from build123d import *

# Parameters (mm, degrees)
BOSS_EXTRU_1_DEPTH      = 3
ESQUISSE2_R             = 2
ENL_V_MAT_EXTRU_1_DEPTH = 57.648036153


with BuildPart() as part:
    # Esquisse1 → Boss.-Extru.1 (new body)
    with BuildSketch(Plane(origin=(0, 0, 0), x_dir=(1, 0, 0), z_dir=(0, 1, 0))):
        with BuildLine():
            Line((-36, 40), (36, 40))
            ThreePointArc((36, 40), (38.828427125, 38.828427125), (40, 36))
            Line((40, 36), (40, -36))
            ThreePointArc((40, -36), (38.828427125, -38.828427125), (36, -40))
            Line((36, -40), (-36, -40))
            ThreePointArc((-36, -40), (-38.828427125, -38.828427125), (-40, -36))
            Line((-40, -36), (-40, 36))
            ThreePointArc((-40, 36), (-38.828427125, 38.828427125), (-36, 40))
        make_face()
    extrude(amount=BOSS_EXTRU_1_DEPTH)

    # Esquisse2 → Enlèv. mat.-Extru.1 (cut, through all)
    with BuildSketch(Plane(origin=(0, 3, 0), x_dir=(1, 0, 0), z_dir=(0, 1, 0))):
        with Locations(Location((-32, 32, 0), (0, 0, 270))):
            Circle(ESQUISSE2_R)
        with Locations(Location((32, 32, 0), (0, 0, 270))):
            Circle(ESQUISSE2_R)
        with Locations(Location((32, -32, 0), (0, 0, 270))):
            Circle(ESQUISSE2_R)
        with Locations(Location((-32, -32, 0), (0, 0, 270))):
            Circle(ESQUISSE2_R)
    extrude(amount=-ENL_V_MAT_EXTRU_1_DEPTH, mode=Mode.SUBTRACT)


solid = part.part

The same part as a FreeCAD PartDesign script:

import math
import FreeCAD as App
import Part
import Sketcher
from FreeCAD import Vector

doc = App.newDocument("Part")
params = doc.addObject("Spreadsheet::Sheet", "Params")
for row, (alias, value) in enumerate([
    ("sketch1_radius", "4 mm"),
    ("sketch1_width", "72 mm"),
    ("pad1_length", "3 mm"),
    ("sketch2_diameter", "4 mm"),
], start=1):
    params.set(f"A{row}", alias)
    params.set(f"B{row}", "=" + value)
    params.setAlias(f"B{row}", alias)

body = doc.addObject("PartDesign::Body", "Body")

# Sketch on XZ plane
sketch1 = body.newObject("Sketcher::SketchObject", "Sketch")
sketch1.AttachmentSupport = (doc.getObject("XZ_Plane"), [""])
sketch1.MapMode = "FlatFace"
sketch1.addGeometry(Part.LineSegment(Vector(36, -40, 0), Vector(-36, -40, 0)), False)
sketch1.addGeometry(Part.ArcOfCircle(Part.Circle(Vector(-36, -36, 0), Vector(0, 0, 1), 4), math.radians(180), math.radians(270)), False)
sketch1.addGeometry(Part.LineSegment(Vector(-40, -36, 0), Vector(-40, 36, 0)), False)
sketch1.addGeometry(Part.ArcOfCircle(Part.Circle(Vector(-36, 36, 0), Vector(0, 0, 1), 4), math.radians(90), math.radians(180)), False)
sketch1.addGeometry(Part.LineSegment(Vector(-36, 40, 0), Vector(36, 40, 0)), False)
sketch1.addGeometry(Part.ArcOfCircle(Part.Circle(Vector(36, 36, 0), Vector(0, 0, 1), 4), math.radians(0), math.radians(90)), False)
sketch1.addGeometry(Part.LineSegment(Vector(40, 36, 0), Vector(40, -36, 0)), False)
sketch1.addGeometry(Part.ArcOfCircle(Part.Circle(Vector(36, -36, 0), Vector(0, 0, 1), 4), math.radians(-90), math.radians(0)), False)
sketch1.addConstraint(Sketcher.Constraint("Tangent", 0, 2, 1, 2))
sketch1.addConstraint(Sketcher.Constraint("Tangent", 1, 1, 2, 1))
sketch1.addConstraint(Sketcher.Constraint("Tangent", 2, 2, 3, 2))
sketch1.addConstraint(Sketcher.Constraint("Tangent", 3, 1, 4, 1))
sketch1.addConstraint(Sketcher.Constraint("Tangent", 4, 2, 5, 2))
sketch1.addConstraint(Sketcher.Constraint("Tangent", 5, 1, 6, 1))
sketch1.addConstraint(Sketcher.Constraint("Tangent", 6, 2, 7, 2))
sketch1.addConstraint(Sketcher.Constraint("Tangent", 7, 1, 0, 1))
sketch1.addConstraint(Sketcher.Constraint("Horizontal", 0))
sketch1.addConstraint(Sketcher.Constraint("Vertical", 2))
sketch1.addConstraint(Sketcher.Constraint("Horizontal", 4))
sketch1.addConstraint(Sketcher.Constraint("Vertical", 6))
sketch1.addConstraint(Sketcher.Constraint("Equal", 1, 3))
sketch1.addConstraint(Sketcher.Constraint("Equal", 3, 5))
sketch1.addConstraint(Sketcher.Constraint("Equal", 5, 7))
sketch1.addConstraint(Sketcher.Constraint("Symmetric", 1, 3, 5, 3, -1, 1))
sketch1.addConstraint(Sketcher.Constraint("Equal", 4, 2))
sketch1.addConstraint(Sketcher.Constraint("Radius", 1, 4.0))
sketch1.addConstraint(Sketcher.Constraint("DistanceX", 0, 2, 0, 1, 72.0))
sketch1.setExpression("Constraints[17]", "Params.sketch1_radius")
sketch1.setExpression("Constraints[18]", "Params.sketch1_width")
pad1 = body.newObject("PartDesign::Pad", "Pad")
pad1.Profile = sketch1
pad1.setExpression("Length", "Params.pad1_length")
pad1.Reversed = True

# Sketch on XZ plane
sketch2 = body.newObject("Sketcher::SketchObject", "Sketch001")
sketch2.AttachmentSupport = (doc.getObject("XZ_Plane"), [""])
sketch2.MapMode = "FlatFace"
sketch2.AttachmentOffset = App.Placement(Vector(0, 0, -3), App.Rotation())
sketch2.addGeometry(Part.Circle(Vector(-32, -32, 0), Vector(0, 0, 1), 2), False)
sketch2.addGeometry(Part.Circle(Vector(32, -32, 0), Vector(0, 0, 1), 2), False)
sketch2.addGeometry(Part.Circle(Vector(32, 32, 0), Vector(0, 0, 1), 2), False)
sketch2.addGeometry(Part.Circle(Vector(-32, 32, 0), Vector(0, 0, 1), 2), False)
sketch2.addConstraint(Sketcher.Constraint("Equal", 0, 1))
sketch2.addConstraint(Sketcher.Constraint("Equal", 1, 2))
sketch2.addConstraint(Sketcher.Constraint("Equal", 2, 3))
sketch2.addConstraint(Sketcher.Constraint("Symmetric", 0, 3, 2, 3, -1, 1))
sketch2.addConstraint(Sketcher.Constraint("Symmetric", 1, 3, 3, 3, -1, 1))
sketch2.addConstraint(Sketcher.Constraint("Symmetric", 0, 3, 1, 3, -2))
sketch2.addConstraint(Sketcher.Constraint("Diameter", 0, 4.0))
sketch2.addConstraint(Sketcher.Constraint("DistanceX", 0, 3, -1, 1, 32.0))
sketch2.addConstraint(Sketcher.Constraint("DistanceY", 0, 3, -1, 1, 32.0))
sketch2.setExpression("Constraints[6]", "Params.sketch2_diameter")
pocket1 = body.newObject("PartDesign::Pocket", "Pocket")
pocket1.Profile = sketch2
pocket1.Type = "ThroughAll"
pocket1.Reversed = True

doc.recompute()
